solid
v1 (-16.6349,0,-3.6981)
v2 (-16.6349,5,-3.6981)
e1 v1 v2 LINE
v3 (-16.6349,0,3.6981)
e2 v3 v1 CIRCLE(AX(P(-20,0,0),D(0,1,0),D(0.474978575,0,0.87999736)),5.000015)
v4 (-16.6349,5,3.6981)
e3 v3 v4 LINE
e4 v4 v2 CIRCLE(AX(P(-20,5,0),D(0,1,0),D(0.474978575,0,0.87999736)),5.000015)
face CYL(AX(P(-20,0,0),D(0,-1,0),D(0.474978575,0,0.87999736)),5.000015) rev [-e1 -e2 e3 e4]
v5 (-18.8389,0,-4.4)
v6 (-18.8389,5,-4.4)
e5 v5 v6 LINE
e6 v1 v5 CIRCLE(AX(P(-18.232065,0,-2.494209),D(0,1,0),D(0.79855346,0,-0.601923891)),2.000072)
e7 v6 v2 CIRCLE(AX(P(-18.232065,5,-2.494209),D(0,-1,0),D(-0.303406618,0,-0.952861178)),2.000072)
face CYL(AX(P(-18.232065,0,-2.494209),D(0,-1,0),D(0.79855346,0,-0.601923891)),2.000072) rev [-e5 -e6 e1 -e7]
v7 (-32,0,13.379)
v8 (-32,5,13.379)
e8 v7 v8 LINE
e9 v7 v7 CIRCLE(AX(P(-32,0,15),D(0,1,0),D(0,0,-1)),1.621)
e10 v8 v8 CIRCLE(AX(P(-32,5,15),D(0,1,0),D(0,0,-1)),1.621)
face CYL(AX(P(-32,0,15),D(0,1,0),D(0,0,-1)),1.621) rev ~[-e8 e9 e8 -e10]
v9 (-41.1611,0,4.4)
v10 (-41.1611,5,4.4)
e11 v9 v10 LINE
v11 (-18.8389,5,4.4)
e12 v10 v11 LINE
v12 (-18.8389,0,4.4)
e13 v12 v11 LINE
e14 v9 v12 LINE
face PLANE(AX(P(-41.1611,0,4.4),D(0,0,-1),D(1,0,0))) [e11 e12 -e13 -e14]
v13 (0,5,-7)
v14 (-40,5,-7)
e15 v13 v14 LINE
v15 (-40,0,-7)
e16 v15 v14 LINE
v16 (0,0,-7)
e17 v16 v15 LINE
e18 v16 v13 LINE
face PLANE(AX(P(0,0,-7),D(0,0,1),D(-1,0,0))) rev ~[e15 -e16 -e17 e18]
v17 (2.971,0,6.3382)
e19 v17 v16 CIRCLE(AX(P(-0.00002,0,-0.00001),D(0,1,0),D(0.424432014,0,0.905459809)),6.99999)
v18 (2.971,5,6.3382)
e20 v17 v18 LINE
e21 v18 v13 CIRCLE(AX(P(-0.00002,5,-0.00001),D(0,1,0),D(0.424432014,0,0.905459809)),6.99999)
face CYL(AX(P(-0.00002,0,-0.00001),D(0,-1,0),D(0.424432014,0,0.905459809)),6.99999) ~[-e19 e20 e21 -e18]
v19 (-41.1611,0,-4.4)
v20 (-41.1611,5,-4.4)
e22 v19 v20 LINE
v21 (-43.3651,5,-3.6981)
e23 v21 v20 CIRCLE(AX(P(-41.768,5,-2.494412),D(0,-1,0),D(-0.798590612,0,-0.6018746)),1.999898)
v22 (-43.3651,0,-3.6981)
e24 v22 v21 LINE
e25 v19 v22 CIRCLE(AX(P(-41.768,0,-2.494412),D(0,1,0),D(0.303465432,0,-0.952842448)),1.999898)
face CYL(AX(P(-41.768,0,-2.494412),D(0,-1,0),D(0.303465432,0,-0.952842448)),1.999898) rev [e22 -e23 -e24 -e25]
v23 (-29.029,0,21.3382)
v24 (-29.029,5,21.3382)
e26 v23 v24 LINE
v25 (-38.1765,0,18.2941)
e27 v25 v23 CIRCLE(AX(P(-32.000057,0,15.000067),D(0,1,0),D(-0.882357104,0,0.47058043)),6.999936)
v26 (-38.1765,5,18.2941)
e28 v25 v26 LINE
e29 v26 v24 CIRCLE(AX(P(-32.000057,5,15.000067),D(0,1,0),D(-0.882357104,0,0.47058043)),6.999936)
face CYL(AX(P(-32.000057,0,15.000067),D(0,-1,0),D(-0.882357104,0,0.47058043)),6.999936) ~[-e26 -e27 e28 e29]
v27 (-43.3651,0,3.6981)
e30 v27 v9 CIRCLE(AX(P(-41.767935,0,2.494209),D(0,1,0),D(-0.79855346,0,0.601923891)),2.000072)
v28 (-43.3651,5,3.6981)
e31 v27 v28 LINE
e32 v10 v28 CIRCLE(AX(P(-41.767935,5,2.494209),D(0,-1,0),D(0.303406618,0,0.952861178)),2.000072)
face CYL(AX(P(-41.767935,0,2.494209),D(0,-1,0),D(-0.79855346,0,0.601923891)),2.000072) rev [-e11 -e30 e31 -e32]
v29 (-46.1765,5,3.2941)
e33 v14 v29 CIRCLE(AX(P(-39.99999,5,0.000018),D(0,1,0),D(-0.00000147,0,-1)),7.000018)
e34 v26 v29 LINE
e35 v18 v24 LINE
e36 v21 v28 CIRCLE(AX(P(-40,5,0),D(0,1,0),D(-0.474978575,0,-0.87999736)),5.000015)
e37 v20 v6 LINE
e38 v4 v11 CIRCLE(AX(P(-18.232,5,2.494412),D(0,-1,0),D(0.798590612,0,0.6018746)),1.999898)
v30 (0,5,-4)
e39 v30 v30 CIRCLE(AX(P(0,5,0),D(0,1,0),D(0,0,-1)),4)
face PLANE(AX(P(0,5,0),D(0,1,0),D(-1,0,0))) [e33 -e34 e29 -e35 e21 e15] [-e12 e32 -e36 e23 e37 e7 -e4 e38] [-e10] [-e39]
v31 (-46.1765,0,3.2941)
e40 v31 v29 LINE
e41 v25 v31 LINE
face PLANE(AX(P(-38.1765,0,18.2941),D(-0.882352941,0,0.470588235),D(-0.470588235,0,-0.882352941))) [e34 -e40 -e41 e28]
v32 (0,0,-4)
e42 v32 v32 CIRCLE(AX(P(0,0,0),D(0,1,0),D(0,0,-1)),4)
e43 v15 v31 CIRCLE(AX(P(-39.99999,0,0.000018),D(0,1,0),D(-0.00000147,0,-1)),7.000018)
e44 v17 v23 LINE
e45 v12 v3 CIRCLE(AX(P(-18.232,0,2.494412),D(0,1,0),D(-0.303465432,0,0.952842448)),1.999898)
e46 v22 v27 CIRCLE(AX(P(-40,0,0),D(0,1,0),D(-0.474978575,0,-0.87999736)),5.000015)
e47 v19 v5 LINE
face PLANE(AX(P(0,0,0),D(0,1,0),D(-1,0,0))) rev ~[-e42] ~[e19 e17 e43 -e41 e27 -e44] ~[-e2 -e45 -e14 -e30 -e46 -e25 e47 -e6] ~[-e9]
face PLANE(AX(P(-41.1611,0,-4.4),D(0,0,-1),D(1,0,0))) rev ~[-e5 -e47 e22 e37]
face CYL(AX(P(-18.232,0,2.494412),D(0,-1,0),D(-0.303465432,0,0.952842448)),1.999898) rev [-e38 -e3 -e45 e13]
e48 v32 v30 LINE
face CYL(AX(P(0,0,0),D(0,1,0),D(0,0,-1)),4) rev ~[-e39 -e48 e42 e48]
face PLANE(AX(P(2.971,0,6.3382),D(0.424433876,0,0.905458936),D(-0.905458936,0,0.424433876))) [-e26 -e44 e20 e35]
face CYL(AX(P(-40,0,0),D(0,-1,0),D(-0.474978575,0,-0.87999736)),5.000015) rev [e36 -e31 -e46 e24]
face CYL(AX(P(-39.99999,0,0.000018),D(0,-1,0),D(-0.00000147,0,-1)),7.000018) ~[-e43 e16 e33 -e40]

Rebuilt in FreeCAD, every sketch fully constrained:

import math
import FreeCAD as App
import Part
import Sketcher
from FreeCAD import Vector
Q = App.Units.Quantity

doc = App.newDocument("Part")
body = doc.addObject("PartDesign::Body", "Body")

sketch1 = body.newObject("Sketcher::SketchObject", "Sketch")
sketch1.AttachmentSupport = (doc.getObject("XZ_Plane"), [""])
sketch1.MapMode = "FlatFace"
sketch1.addGeometry(Part.LineSegment(Vector(-29.029, 21.3382, 0), Vector(2.971, 6.3382, 0)), False)
sketch1.addGeometry(Part.ArcOfCircle(Part.Circle(Vector(0, 0, 0), Vector(0, 0, 1), 7), math.radians(-90), math.radians(64.885397)), False)
sketch1.addGeometry(Part.LineSegment(Vector(0, -7, 0), Vector(-40, -7, 0)), False)
sketch1.addGeometry(Part.ArcOfCircle(Part.Circle(Vector(-40, 0, 0), Vector(0, 0, 1), 7), math.radians(151.927754), math.radians(270)), False)
sketch1.addGeometry(Part.LineSegment(Vector(-46.1765, 3.2941, 0), Vector(-38.1765, 18.2941, 0)), False)
sketch1.addGeometry(Part.ArcOfCircle(Part.Circle(Vector(-32, 15, 0), Vector(0, 0, 1), 7), math.radians(64.885397), math.radians(151.927754)), False)
sketch1.addGeometry(Part.ArcOfCircle(Part.Circle(Vector(-41.768, -2.4943, 0), Vector(0, 0, 1), 2.000005), math.radians(-142.993163), math.radians(-72.335109)), False)
sketch1.addGeometry(Part.LineSegment(Vector(-41.1611, -4.4, 0), Vector(-18.8389, -4.4, 0)), False)
sketch1.addGeometry(Part.ArcOfCircle(Part.Circle(Vector(-18.232, -2.4943, 0), Vector(0, 0, 1), 1.999966), math.radians(-107.664891), math.radians(-37.006837)), False)
sketch1.addGeometry(Part.ArcOfCircle(Part.Circle(Vector(-20, 0, 0), Vector(0, 0, 1), 5.000015), math.radians(-47.699255), math.radians(47.699255)), False)
sketch1.addGeometry(Part.ArcOfCircle(Part.Circle(Vector(-18.232, 2.4943, 0), Vector(0, 0, 1), 2.000005), math.radians(37.006837), math.radians(107.664891)), False)
sketch1.addGeometry(Part.LineSegment(Vector(-18.8389, 4.4, 0), Vector(-41.1611, 4.4, 0)), False)
sketch1.addGeometry(Part.ArcOfCircle(Part.Circle(Vector(-41.768, 2.4943, 0), Vector(0, 0, 1), 1.999966), math.radians(72.335109), math.radians(142.993163)), False)
sketch1.addGeometry(Part.ArcOfCircle(Part.Circle(Vector(-40, 0, 0), Vector(0, 0, 1), 5.000015), math.radians(132.300745), math.radians(227.699255)), False)
sketch1.addConstraint(Sketcher.Constraint("Tangent", 0, 2, 1, 2))
sketch1.addConstraint(Sketcher.Constraint("Tangent", 1, 1, 2, 1))
sketch1.addConstraint(Sketcher.Constraint("Tangent", 2, 2, 3, 2))
sketch1.addConstraint(Sketcher.Constraint("Tangent", 3, 1, 4, 1))
sketch1.addConstraint(Sketcher.Constraint("Tangent", 4, 2, 5, 2))
sketch1.addConstraint(Sketcher.Constraint("Tangent", 5, 1, 0, 1))
sketch1.addConstraint(Sketcher.Constraint("Coincident", 6, 2, 7, 1))
sketch1.addConstraint(Sketcher.Constraint("Coincident", 7, 2, 8, 1))
sketch1.addConstraint(Sketcher.Constraint("Coincident", 8, 2, 9, 1))
sketch1.addConstraint(Sketcher.Constraint("Coincident", 9, 2, 10, 1))
sketch1.addConstraint(Sketcher.Constraint("Coincident", 10, 2, 11, 1))
sketch1.addConstraint(Sketcher.Constraint("Coincident", 11, 2, 12, 1))
sketch1.addConstraint(Sketcher.Constraint("Coincident", 12, 2, 13, 1))
sketch1.addConstraint(Sketcher.Constraint("Coincident", 13, 2, 6, 1))
sketch1.addConstraint(Sketcher.Constraint("Horizontal", 2))
sketch1.addConstraint(Sketcher.Constraint("Horizontal", 7))
sketch1.addConstraint(Sketcher.Constraint("Horizontal", 11))
sketch1.addConstraint(Sketcher.Constraint("Coincident", 1, 3, -1, 1))
sketch1.addConstraint(Sketcher.Constraint("Coincident", 13, 3, 3, 3))
sketch1.addConstraint(Sketcher.Constraint("Equal", 1, 3))
sketch1.addConstraint(Sketcher.Constraint("Equal", 3, 5))
sketch1.addConstraint(Sketcher.Constraint("Equal", 6, 8))
sketch1.addConstraint(Sketcher.Constraint("Equal", 8, 10))
sketch1.addConstraint(Sketcher.Constraint("Equal", 10, 12))
sketch1.addConstraint(Sketcher.Constraint("Equal", 9, 13))
sketch1.addConstraint(Sketcher.Constraint("Symmetric", 8, 3, 10, 3, -1))
sketch1.addConstraint(Sketcher.Constraint("Symmetric", 6, 3, 12, 3, -1))
sketch1.addConstraint(Sketcher.Constraint("PointOnObject", 9, 3, -1))
sketch1.addConstraint(Sketcher.Constraint("Horizontal", 6, 3, 8, 3))
sketch1.addConstraint(Sketcher.Constraint("Horizontal", 9, 2, 12, 2))
sketch1.addConstraint(Sketcher.Constraint("Vertical", 7, 2, 10, 2))
sketch1.addConstraint(Sketcher.Constraint("Radius", 1, Q("7 mm")))
sketch1.addConstraint(Sketcher.Constraint("Radius", 6, Q("2 mm")))
sketch1.addConstraint(Sketcher.Constraint("Radius", 9, Q("5 mm")))
sketch1.addConstraint(Sketcher.Constraint("DistanceX", 5, 3, -1, 1, Q("32 mm")))
sketch1.addConstraint(Sketcher.Constraint("DistanceY", -1, 1, 5, 3, Q("15 mm")))
sketch1.addConstraint(Sketcher.Constraint("DistanceX", 9, 3, -1, 1, Q("20 mm")))
sketch1.addConstraint(Sketcher.Constraint("DistanceX", 3, 3, 5, 3, Q("8 mm")))
sketch1.addConstraint(Sketcher.Constraint("DistanceY", 6, 2, -1, 1, Q("4.4 mm")))
sketch1.addConstraint(Sketcher.Constraint("DistanceX", 7, 1, 7, 2, Q("22.3222 mm")))
sketch1.addConstraint(Sketcher.Constraint("DistanceX", 6, 3, -1, 1, Q("41.768 mm")))
pad1 = body.newObject("PartDesign::Pad", "Pad")
pad1.Profile = sketch1
pad1.Length = 5
pad1.Reversed = True

sketch2 = body.newObject("Sketcher::SketchObject", "Sketch001")
sketch2.AttachmentSupport = (doc.getObject("XZ_Plane"), [""])
sketch2.MapMode = "FlatFace"
sketch2.addGeometry(Part.Circle(Vector(0, 0, 0), Vector(0, 0, 1), 4), False)
sketch2.addConstraint(Sketcher.Constraint("Coincident", 0, 3, -1, 1))
sketch2.addConstraint(Sketcher.Constraint("Diameter", 0, Q("8 mm")))
doc.recompute()
hole = body.newObject("PartDesign::Hole", "Hole")
hole.Profile = sketch2
hole.ThreadType = "None"
hole.Diameter = 8
hole.DepthType = "ThroughAll"

sketch3 = body.newObject("Sketcher::SketchObject", "Sketch002")
sketch3.AttachmentSupport = (doc.getObject("XZ_Plane"), [""])
sketch3.MapMode = "FlatFace"
sketch3.addGeometry(Part.Circle(Vector(-32, 15, 0), Vector(0, 0, 1), 1.621), False)
sketch3.addConstraint(Sketcher.Constraint("Diameter", 0, Q("3.242 mm")))
sketch3.addConstraint(Sketcher.Constraint("DistanceX", 0, 3, -1, 1, Q("32 mm")))
sketch3.addConstraint(Sketcher.Constraint("DistanceY", -1, 1, 0, 3, Q("15 mm")))
doc.recompute()
hole2 = body.newObject("PartDesign::Hole", "Hole001")
hole2.Profile = sketch3
hole2.ThreadType = "None"
hole2.Diameter = 3.242
hole2.DepthType = "ThroughAll"

doc.recompute()
